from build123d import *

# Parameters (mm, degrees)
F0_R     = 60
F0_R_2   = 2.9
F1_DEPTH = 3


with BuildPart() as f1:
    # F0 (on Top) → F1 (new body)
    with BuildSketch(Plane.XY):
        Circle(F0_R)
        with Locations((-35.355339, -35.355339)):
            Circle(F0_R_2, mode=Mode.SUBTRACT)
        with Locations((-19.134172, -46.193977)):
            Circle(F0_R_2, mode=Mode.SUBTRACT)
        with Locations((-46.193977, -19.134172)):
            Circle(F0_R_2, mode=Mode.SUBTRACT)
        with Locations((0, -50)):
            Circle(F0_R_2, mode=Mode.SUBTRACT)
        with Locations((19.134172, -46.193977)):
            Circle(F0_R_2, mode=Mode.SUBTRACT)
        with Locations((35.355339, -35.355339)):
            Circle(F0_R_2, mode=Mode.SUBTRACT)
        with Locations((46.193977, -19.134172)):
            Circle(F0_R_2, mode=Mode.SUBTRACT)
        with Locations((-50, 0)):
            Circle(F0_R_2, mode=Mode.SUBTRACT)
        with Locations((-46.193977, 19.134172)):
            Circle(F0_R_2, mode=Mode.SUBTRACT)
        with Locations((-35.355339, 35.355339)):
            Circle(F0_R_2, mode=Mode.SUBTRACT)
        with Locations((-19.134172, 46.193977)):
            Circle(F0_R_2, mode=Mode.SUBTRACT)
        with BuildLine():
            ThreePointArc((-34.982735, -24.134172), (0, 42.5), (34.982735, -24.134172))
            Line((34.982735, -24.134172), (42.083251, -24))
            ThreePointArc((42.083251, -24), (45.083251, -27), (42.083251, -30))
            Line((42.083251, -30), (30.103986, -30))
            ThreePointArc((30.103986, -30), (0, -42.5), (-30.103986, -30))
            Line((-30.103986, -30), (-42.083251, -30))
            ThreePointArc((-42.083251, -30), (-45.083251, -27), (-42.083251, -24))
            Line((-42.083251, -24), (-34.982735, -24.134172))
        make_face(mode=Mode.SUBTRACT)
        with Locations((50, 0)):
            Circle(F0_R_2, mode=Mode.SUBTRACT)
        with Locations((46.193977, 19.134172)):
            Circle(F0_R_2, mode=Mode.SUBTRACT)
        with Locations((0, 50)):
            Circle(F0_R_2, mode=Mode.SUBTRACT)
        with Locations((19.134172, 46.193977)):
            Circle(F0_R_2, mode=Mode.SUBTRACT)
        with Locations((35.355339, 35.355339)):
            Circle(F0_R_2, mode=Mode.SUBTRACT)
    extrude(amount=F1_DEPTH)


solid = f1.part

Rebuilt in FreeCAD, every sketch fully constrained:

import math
import FreeCAD as App
import Part
import Sketcher

doc = App.newDocument("Part")
body = doc.addObject("PartDesign::Body", "Body")

# Sketch on XY plane
sketch1 = body.newObject("Sketcher::SketchObject", "Sketch")
sketch1.AttachmentSupport = (doc.getObject("XY_Plane"), [""])
sketch1.MapMode = "FlatFace"
sketch1.addGeometry(Part.Circle(App.Vector(0, 0, 0), App.Vector(0, 0, 1), 60), False)
sketch1.addGeometry(Part.Circle(App.Vector(-35.355339, -35.355339, 0), App.Vector(0, 0, 1), 2.9), False)
sketch1.addGeometry(Part.Circle(App.Vector(-19.134172, -46.193977, 0), App.Vector(0, 0, 1), 2.9), False)
sketch1.addGeometry(Part.Circle(App.Vector(-46.193977, -19.134172, 0), App.Vector(0, 0, 1), 2.9), False)
sketch1.addGeometry(Part.Circle(App.Vector(0, -50, 0), App.Vector(0, 0, 1), 2.9), False)
sketch1.addGeometry(Part.Circle(App.Vector(19.134172, -46.193977, 0), App.Vector(0, 0, 1), 2.9), False)
sketch1.addGeometry(Part.Circle(App.Vector(35.355339, -35.355339, 0), App.Vector(0, 0, 1), 2.9), False)
sketch1.addGeometry(Part.Circle(App.Vector(46.193977, -19.134172, 0), App.Vector(0, 0, 1), 2.9), False)
sketch1.addGeometry(Part.Circle(App.Vector(-50, 0, 0), App.Vector(0, 0, 1), 2.9), False)
sketch1.addGeometry(Part.Circle(App.Vector(-46.193977, 19.134172, 0), App.Vector(0, 0, 1), 2.9), False)
sketch1.addGeometry(Part.Circle(App.Vector(-35.355339, 35.355339, 0), App.Vector(0, 0, 1), 2.9), False)
sketch1.addGeometry(Part.Circle(App.Vector(-19.134172, 46.193977, 0), App.Vector(0, 0, 1), 2.9), False)
sketch1.addGeometry(Part.LineSegment(App.Vector(-42.083251, -24, 0), App.Vector(-34.982735, -24.134172, 0)), False)
sketch1.addGeometry(Part.ArcOfCircle(Part.Circle(App.Vector(0, 0, 0), App.Vector(0, 0, 1), 42.5), math.radians(-34.601331), math.radians(214.601331)), False)
sketch1.addGeometry(Part.LineSegment(App.Vector(34.982735, -24.134172, 0), App.Vector(42.083251, -24, 0)), False)
sketch1.addGeometry(Part.ArcOfCircle(Part.Circle(App.Vector(42.083251, -27, 0), App.Vector(0, 0, 1), 3), math.radians(-90), math.radians(90)), False)
sketch1.addGeometry(Part.LineSegment(App.Vector(42.083251, -30, 0), App.Vector(30.103986, -30, 0)), False)
sketch1.addGeometry(Part.ArcOfCircle(Part.Circle(App.Vector(0, -0.000001, 0), App.Vector(0, 0, 1), 42.499999), math.radians(-135.099128), math.radians(-44.900872)), False)
sketch1.addGeometry(Part.LineSegment(App.Vector(-30.103986, -30, 0), App.Vector(-42.083251, -30, 0)), False)
sketch1.addGeometry(Part.ArcOfCircle(Part.Circle(App.Vector(-42.083251, -27, 0), App.Vector(0, 0, 1), 3), math.radians(90), math.radians(270)), False)
sketch1.addGeometry(Part.Circle(App.Vector(50, 0, 0), App.Vector(0, 0, 1), 2.9), False)
sketch1.addGeometry(Part.Circle(App.Vector(46.193977, 19.134172, 0), App.Vector(0, 0, 1), 2.9), False)
sketch1.addGeometry(Part.Circle(App.Vector(0, 50, 0), App.Vector(0, 0, 1), 2.9), False)
sketch1.addGeometry(Part.Circle(App.Vector(19.134172, 46.193977, 0), App.Vector(0, 0, 1), 2.9), False)
sketch1.addGeometry(Part.Circle(App.Vector(35.355339, 35.355339, 0), App.Vector(0, 0, 1), 2.9), False)
sketch1.addConstraint(Sketcher.Constraint("Coincident", 12, 2, 13, 2))
sketch1.addConstraint(Sketcher.Constraint("Coincident", 13, 1, 14, 1))
sketch1.addConstraint(Sketcher.Constraint("Coincident", 14, 2, 15, 2))
sketch1.addConstraint(Sketcher.Constraint("Tangent", 15, 1, 16, 1))
sketch1.addConstraint(Sketcher.Constraint("Coincident", 16, 2, 17, 2))
sketch1.addConstraint(Sketcher.Constraint("Coincident", 17, 1, 18, 1))
sketch1.addConstraint(Sketcher.Constraint("Tangent", 18, 2, 19, 2))
sketch1.addConstraint(Sketcher.Constraint("Coincident", 19, 1, 12, 1))
sketch1.addConstraint(Sketcher.Constraint("Horizontal", 16))
sketch1.addConstraint(Sketcher.Constraint("Horizontal", 18))
sketch1.addConstraint(Sketcher.Constraint("Coincident", 0, 3, -1, 1))
sketch1.addConstraint(Sketcher.Constraint("Coincident", 13, 3, -1, 1))
sketch1.addConstraint(Sketcher.Constraint("Coincident", 17, 3, -1, 1))
sketch1.addConstraint(Sketcher.Constraint("Equal", 1, 2))
sketch1.addConstraint(Sketcher.Constraint("Equal", 2, 3))
sketch1.addConstraint(Sketcher.Constraint("Equal", 3, 4))
sketch1.addConstraint(Sketcher.Constraint("Equal", 4, 5))
sketch1.addConstraint(Sketcher.Constraint("Equal", 5, 6))
sketch1.addConstraint(Sketcher.Constraint("Equal", 6, 7))
sketch1.addConstraint(Sketcher.Constraint("Equal", 7, 8))
sketch1.addConstraint(Sketcher.Constraint("Equal", 8, 9))
sketch1.addConstraint(Sketcher.Constraint("Equal", 9, 10))
sketch1.addConstraint(Sketcher.Constraint("Equal", 10, 11))
sketch1.addConstraint(Sketcher.Constraint("Equal", 13, 17))
sketch1.addConstraint(Sketcher.Constraint("Equal", 15, 19))
sketch1.addConstraint(Sketcher.Constraint("Equal", 11, 20))
sketch1.addConstraint(Sketcher.Constraint("Equal", 20, 21))
sketch1.addConstraint(Sketcher.Constraint("Equal", 21, 22))
sketch1.addConstraint(Sketcher.Constraint("Equal", 22, 23))
sketch1.addConstraint(Sketcher.Constraint("Equal", 23, 24))
sketch1.addConstraint(Sketcher.Constraint("Symmetric", 7, 3, 9, 3, -1, 1))
sketch1.addConstraint(Sketcher.Constraint("Symmetric", 6, 3, 10, 3, -1, 1))
sketch1.addConstraint(Sketcher.Constraint("Symmetric", 5, 3, 11, 3, -1, 1))
sketch1.addConstraint(Sketcher.Constraint("Symmetric", 8, 3, 20, 3, -1, 1))
sketch1.addConstraint(Sketcher.Constraint("Symmetric", 3, 3, 21, 3, -1, 1))
sketch1.addConstraint(Sketcher.Constraint("Symmetric", 4, 3, 22, 3, -1, 1))
sketch1.addConstraint(Sketcher.Constraint("Symmetric", 2, 3, 23, 3, -1, 1))
sketch1.addConstraint(Sketcher.Constraint("Symmetric", 1, 3, 24, 3, -1, 1))
sketch1.addConstraint(Sketcher.Constraint("Symmetric", 2, 3, 5, 3, -2))
sketch1.addConstraint(Sketcher.Constraint("Symmetric", 1, 3, 6, 3, -2))
sketch1.addConstraint(Sketcher.Constraint("Symmetric", 3, 3, 7, 3, -2))
sketch1.addConstraint(Sketcher.Constraint("Symmetric", 15, 3, 19, 3, -2))
sketch1.addConstraint(Sketcher.Constraint("PointOnObject", 4, 3, -2))
sketch1.addConstraint(Sketcher.Constraint("PointOnObject", 8, 3, -1))
sketch1.addConstraint(Sketcher.Constraint("Horizontal", 12, 2, 13, 1))
sketch1.addConstraint(Sketcher.Constraint("Vertical", 15, 3, 14, 2))
sketch1.addConstraint(Sketcher.Constraint("Vertical", 18, 2, 19, 1))
sketch1.addConstraint(Sketcher.Constraint("Diameter", 0, 120.0))
sketch1.addConstraint(Sketcher.Constraint("Radius", 15, 3.0))
sketch1.addConstraint(Sketcher.Constraint("Diameter", 1, 5.8))
sketch1.addConstraint(Sketcher.Constraint("Radius", 13, 42.5))
sketch1.addConstraint(Sketcher.Constraint("DistanceY", 4, 3, -1, 1, 50.0))
sketch1.addConstraint(Sketcher.Constraint("DistanceX", 8, 3, -1, 1, 50.0))
sketch1.addConstraint(Sketcher.Constraint("DistanceY", 15, 3, -1, 1, 27.0))
sketch1.addConstraint(Sketcher.Constraint("DistanceY", 12, 2, 3, 3, 5.0))
sketch1.addConstraint(Sketcher.Constraint("DistanceX", 16, 2, 16, 1, 11.979265))
sketch1.addConstraint(Sketcher.Constraint("DistanceX", 1, 3, -1, 1, 35.355339))
sketch1.addConstraint(Sketcher.Constraint("DistanceY", 1, 3, -1, 1, 35.355339))
sketch1.addConstraint(Sketcher.Constraint("DistanceX", 2, 3, -1, 1, 19.134172))
sketch1.addConstraint(Sketcher.Constraint("DistanceY", 3, 3, -1, 1, 19.134172))
sketch1.addConstraint(Sketcher.Constraint("DistanceX", 3, 3, 5, 3, 65.328149))
sketch1.addConstraint(Sketcher.Constraint("DistanceY", 2, 3, 9, 3, 65.328149))
pad1 = body.newObject("PartDesign::Pad", "Pad")
pad1.Profile = sketch1
pad1.Length = 3

doc.recompute()
